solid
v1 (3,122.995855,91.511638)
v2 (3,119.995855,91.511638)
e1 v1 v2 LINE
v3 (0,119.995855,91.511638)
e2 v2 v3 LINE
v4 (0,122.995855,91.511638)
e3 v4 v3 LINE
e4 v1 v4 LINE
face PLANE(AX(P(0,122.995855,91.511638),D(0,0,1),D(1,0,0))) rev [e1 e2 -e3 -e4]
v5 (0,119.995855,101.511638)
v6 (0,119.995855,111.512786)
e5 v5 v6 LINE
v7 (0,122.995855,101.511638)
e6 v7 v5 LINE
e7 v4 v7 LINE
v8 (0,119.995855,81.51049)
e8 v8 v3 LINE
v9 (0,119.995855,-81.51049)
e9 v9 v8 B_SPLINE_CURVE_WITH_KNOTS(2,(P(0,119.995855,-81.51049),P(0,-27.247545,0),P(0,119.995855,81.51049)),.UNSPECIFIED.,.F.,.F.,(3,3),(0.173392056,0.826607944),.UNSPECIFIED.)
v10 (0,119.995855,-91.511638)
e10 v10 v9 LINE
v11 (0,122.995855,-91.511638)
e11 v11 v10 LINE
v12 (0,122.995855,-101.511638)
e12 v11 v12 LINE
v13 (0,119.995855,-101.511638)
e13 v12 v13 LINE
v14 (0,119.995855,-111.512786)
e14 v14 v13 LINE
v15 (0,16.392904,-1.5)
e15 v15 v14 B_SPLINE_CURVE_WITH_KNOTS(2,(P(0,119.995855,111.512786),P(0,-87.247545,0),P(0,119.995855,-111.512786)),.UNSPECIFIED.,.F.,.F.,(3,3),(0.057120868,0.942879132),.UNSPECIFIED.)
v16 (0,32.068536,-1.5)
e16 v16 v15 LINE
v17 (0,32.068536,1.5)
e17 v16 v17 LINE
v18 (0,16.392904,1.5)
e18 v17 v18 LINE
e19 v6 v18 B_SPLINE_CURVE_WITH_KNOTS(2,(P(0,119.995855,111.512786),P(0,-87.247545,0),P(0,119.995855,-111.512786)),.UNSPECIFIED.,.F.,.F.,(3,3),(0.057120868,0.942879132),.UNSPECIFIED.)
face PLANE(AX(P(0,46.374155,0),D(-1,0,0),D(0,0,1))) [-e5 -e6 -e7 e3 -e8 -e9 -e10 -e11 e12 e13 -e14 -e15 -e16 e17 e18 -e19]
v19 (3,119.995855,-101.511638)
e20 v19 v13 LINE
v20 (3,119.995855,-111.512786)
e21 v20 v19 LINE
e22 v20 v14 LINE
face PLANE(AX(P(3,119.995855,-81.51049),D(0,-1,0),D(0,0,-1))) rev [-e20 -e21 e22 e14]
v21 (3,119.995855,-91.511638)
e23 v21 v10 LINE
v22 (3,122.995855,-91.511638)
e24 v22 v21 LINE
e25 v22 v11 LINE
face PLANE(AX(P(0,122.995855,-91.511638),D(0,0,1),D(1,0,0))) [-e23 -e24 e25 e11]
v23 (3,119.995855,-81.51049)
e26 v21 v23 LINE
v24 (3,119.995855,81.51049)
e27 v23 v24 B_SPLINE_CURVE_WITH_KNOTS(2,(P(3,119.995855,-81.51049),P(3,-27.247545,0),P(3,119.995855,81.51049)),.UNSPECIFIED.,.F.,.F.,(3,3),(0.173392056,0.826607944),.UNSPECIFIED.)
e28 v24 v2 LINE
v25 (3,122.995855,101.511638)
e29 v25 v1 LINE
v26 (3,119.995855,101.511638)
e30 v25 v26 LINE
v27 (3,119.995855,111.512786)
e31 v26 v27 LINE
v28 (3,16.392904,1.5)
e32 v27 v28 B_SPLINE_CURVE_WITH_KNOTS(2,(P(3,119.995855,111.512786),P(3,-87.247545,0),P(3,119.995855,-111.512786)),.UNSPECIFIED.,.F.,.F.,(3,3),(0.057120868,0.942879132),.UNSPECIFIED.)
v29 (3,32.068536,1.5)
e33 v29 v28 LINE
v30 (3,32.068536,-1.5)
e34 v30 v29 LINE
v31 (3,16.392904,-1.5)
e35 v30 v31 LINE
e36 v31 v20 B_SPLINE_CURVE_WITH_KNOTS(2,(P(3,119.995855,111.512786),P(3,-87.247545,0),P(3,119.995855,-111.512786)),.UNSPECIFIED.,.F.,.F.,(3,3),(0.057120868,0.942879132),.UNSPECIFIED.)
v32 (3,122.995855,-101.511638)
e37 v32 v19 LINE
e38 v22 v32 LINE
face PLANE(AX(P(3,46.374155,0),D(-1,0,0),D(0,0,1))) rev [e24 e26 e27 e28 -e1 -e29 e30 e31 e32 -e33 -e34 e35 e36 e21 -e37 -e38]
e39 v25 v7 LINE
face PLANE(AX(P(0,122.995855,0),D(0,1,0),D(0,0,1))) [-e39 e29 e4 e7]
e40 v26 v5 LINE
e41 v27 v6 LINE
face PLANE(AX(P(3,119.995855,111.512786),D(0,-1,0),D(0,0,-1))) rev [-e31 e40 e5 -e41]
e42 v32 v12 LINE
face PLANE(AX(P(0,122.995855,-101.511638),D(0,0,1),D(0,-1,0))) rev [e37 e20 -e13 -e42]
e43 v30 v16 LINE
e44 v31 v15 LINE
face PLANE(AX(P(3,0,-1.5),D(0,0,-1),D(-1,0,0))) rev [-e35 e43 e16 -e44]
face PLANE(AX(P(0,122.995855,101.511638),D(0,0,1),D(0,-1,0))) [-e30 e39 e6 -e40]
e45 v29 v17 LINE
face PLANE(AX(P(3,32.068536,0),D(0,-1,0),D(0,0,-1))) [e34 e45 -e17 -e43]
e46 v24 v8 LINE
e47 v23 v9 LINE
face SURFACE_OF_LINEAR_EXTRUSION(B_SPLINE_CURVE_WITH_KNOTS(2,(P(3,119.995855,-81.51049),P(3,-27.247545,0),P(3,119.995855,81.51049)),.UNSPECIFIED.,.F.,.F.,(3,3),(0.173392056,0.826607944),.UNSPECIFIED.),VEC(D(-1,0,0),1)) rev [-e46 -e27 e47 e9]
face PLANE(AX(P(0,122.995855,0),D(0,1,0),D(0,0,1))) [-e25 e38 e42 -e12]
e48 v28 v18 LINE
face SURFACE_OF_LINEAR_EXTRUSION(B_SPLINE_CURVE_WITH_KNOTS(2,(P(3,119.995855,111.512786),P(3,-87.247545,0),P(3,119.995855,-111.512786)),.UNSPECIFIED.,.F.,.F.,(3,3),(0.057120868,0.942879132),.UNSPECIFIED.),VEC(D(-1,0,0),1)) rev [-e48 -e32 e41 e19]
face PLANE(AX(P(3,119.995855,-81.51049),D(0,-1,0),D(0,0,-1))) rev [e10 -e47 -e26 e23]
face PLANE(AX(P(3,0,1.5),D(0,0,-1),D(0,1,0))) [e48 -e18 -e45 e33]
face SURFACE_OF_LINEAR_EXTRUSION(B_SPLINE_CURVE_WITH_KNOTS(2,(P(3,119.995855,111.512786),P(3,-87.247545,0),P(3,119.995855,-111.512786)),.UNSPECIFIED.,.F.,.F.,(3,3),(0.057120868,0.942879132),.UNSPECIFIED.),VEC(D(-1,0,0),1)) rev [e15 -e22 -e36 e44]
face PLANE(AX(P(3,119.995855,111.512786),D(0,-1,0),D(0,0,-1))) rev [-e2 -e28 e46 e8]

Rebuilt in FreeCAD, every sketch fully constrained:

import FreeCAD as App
import Part
import Sketcher
from FreeCAD import Vector
Q = App.Units.Quantity


def add_polygon(sketch, points):
    """Adds a closed chain of lines whose ends are joined by coincident constraints."""
    first, n = sketch.GeometryCount, len(points)
    for a, b in zip(points, points[1:] + points[:1]):
        sketch.addGeometry(Part.LineSegment(App.Vector(*a, 0), App.Vector(*b, 0)), False)
    for i in range(n):
        sketch.addConstraint(Sketcher.Constraint("Coincident", first + i, 2, first + (i + 1) % n, 1))

doc = App.newDocument("Part")
body = doc.addObject("PartDesign::Body", "Body")

sketch1 = body.newObject("Sketcher::SketchObject", "Sketch")
sketch1.AttachmentSupport = (doc.getObject("YZ_Plane"), [""])
sketch1.MapMode = "FlatFace"
sketch1.addGeometry(Part.LineSegment(Vector(119.995855, 81.51049, 0), Vector(119.995855, 111.512786, 0)), False)
sketch1.addGeometry(Part.BSplineCurve([Vector(119.995855, 111.512786, 0), Vector(-87.247545, 0, 0), Vector(119.995855, -111.512786, 0)], [3, 3], [0.057120868, 0.942879132], False, 2, [1, 1, 1], False), False)
sketch1.addGeometry(Part.LineSegment(Vector(119.995855, -111.512786, 0), Vector(119.995855, -81.51049, 0)), False)
sketch1.addGeometry(Part.BSplineCurve([Vector(119.995855, 81.51049, 0), Vector(-27.247545, 0, 0), Vector(119.995855, -81.51049, 0)], [3, 3], [0.173392056, 0.826607944], False, 2, [1, 1, 1], False), False)
sketch1.addConstraint(Sketcher.Constraint("Block", 1))
sketch1.addConstraint(Sketcher.Constraint("Block", 3))
sketch1.addConstraint(Sketcher.Constraint("Coincident", 0, 2, 1, 1))
sketch1.addConstraint(Sketcher.Constraint("Coincident", 1, 2, 2, 1))
sketch1.addConstraint(Sketcher.Constraint("Coincident", 2, 2, 3, 2))
sketch1.addConstraint(Sketcher.Constraint("Coincident", 3, 1, 0, 1))
pad1 = body.newObject("PartDesign::Pad", "Pad")
pad1.Profile = sketch1
pad1.Length = 3

sketch2 = body.newObject("Sketcher::SketchObject", "Sketch001")
sketch2.AttachmentSupport = (doc.getObject("XZ_Plane"), [""])
sketch2.MapMode = "FlatFace"
sketch2.AttachmentOffset = App.Placement(Vector(0, 0, -119.995855), App.Rotation())
add_polygon(sketch2, [(0, -91.511638), (3, -91.511638), (3, -101.511638), (0, -101.511638)])
add_polygon(sketch2, [(0, 101.511638), (3, 101.511638), (3, 91.511638), (0, 91.511638)])
sketch2.addConstraint(Sketcher.Constraint("Horizontal", 0))
sketch2.addConstraint(Sketcher.Constraint("Vertical", 1))
sketch2.addConstraint(Sketcher.Constraint("Horizontal", 2))
sketch2.addConstraint(Sketcher.Constraint("Vertical", 3))
sketch2.addConstraint(Sketcher.Constraint("Horizontal", 4))
sketch2.addConstraint(Sketcher.Constraint("Vertical", 5))
sketch2.addConstraint(Sketcher.Constraint("Horizontal", 6))
sketch2.addConstraint(Sketcher.Constraint("Vertical", 7))
sketch2.addConstraint(Sketcher.Constraint("Symmetric", 3, 2, 6, 2, -1, 1))
sketch2.addConstraint(Sketcher.Constraint("Symmetric", 1, 2, 4, 2, -1))
sketch2.addConstraint(Sketcher.Constraint("PointOnObject", 2, 2, -2))
sketch2.addConstraint(Sketcher.Constraint("DistanceX", 0, 1, 0, 2, Q("3 mm")))
sketch2.addConstraint(Sketcher.Constraint("DistanceY", 1, 2, 1, 1, Q("10 mm")))
sketch2.addConstraint(Sketcher.Constraint("DistanceY", 0, 2, -1, 1, Q("91.511638 mm")))
pad2 = body.newObject("PartDesign::Pad", "Pad001")
pad2.Profile = sketch2
pad2.Length = 3
pad2.Reversed = True

sketch3 = body.newObject("Sketcher::SketchObject", "Sketch002")
sketch3.AttachmentSupport = (doc.getObject("YZ_Plane"), [""])
sketch3.MapMode = "FlatFace"
sketch3.addGeometry(Part.LineSegment(Vector(32.068536, 1.5, 0), Vector(32.068536, -1.5, 0)), False)
sketch3.addGeometry(Part.LineSegment(Vector(32.068536, -1.5, 0), Vector(16.392904, -1.5, 0)), False)
sketch3.addGeometry(Part.BSplineCurve([Vector(16.392904, -1.5, 0), Vector(16.355406, 0, 0), Vector(16.392904, 1.5, 0)], [3, 3], [0.494042668, 0.505957332], False, 2, [1, 1, 1], False), False)
sketch3.addGeometry(Part.LineSegment(Vector(16.392904, 1.5, 0), Vector(32.068536, 1.5, 0)), False)
sketch3.addConstraint(Sketcher.Constraint("Block", 2))
sketch3.addConstraint(Sketcher.Constraint("Coincident", 0, 2, 1, 1))
sketch3.addConstraint(Sketcher.Constraint("Coincident", 1, 2, 2, 1))
sketch3.addConstraint(Sketcher.Constraint("Coincident", 2, 2, 3, 1))
sketch3.addConstraint(Sketcher.Constraint("Coincident", 3, 2, 0, 1))
sketch3.addConstraint(Sketcher.Constraint("Vertical", 0))
sketch3.addConstraint(Sketcher.Constraint("Horizontal", 1))
sketch3.addConstraint(Sketcher.Constraint("Horizontal", 3))
sketch3.addConstraint(Sketcher.Constraint("DistanceX", 1, 2, 1, 1, Q("15.675632 mm")))
pocket1 = body.newObject("PartDesign::Pocket", "Pocket")
pocket1.Profile = sketch3
pocket1.Type = "ThroughAll"
pocket1.Reversed = True

doc.recompute()
